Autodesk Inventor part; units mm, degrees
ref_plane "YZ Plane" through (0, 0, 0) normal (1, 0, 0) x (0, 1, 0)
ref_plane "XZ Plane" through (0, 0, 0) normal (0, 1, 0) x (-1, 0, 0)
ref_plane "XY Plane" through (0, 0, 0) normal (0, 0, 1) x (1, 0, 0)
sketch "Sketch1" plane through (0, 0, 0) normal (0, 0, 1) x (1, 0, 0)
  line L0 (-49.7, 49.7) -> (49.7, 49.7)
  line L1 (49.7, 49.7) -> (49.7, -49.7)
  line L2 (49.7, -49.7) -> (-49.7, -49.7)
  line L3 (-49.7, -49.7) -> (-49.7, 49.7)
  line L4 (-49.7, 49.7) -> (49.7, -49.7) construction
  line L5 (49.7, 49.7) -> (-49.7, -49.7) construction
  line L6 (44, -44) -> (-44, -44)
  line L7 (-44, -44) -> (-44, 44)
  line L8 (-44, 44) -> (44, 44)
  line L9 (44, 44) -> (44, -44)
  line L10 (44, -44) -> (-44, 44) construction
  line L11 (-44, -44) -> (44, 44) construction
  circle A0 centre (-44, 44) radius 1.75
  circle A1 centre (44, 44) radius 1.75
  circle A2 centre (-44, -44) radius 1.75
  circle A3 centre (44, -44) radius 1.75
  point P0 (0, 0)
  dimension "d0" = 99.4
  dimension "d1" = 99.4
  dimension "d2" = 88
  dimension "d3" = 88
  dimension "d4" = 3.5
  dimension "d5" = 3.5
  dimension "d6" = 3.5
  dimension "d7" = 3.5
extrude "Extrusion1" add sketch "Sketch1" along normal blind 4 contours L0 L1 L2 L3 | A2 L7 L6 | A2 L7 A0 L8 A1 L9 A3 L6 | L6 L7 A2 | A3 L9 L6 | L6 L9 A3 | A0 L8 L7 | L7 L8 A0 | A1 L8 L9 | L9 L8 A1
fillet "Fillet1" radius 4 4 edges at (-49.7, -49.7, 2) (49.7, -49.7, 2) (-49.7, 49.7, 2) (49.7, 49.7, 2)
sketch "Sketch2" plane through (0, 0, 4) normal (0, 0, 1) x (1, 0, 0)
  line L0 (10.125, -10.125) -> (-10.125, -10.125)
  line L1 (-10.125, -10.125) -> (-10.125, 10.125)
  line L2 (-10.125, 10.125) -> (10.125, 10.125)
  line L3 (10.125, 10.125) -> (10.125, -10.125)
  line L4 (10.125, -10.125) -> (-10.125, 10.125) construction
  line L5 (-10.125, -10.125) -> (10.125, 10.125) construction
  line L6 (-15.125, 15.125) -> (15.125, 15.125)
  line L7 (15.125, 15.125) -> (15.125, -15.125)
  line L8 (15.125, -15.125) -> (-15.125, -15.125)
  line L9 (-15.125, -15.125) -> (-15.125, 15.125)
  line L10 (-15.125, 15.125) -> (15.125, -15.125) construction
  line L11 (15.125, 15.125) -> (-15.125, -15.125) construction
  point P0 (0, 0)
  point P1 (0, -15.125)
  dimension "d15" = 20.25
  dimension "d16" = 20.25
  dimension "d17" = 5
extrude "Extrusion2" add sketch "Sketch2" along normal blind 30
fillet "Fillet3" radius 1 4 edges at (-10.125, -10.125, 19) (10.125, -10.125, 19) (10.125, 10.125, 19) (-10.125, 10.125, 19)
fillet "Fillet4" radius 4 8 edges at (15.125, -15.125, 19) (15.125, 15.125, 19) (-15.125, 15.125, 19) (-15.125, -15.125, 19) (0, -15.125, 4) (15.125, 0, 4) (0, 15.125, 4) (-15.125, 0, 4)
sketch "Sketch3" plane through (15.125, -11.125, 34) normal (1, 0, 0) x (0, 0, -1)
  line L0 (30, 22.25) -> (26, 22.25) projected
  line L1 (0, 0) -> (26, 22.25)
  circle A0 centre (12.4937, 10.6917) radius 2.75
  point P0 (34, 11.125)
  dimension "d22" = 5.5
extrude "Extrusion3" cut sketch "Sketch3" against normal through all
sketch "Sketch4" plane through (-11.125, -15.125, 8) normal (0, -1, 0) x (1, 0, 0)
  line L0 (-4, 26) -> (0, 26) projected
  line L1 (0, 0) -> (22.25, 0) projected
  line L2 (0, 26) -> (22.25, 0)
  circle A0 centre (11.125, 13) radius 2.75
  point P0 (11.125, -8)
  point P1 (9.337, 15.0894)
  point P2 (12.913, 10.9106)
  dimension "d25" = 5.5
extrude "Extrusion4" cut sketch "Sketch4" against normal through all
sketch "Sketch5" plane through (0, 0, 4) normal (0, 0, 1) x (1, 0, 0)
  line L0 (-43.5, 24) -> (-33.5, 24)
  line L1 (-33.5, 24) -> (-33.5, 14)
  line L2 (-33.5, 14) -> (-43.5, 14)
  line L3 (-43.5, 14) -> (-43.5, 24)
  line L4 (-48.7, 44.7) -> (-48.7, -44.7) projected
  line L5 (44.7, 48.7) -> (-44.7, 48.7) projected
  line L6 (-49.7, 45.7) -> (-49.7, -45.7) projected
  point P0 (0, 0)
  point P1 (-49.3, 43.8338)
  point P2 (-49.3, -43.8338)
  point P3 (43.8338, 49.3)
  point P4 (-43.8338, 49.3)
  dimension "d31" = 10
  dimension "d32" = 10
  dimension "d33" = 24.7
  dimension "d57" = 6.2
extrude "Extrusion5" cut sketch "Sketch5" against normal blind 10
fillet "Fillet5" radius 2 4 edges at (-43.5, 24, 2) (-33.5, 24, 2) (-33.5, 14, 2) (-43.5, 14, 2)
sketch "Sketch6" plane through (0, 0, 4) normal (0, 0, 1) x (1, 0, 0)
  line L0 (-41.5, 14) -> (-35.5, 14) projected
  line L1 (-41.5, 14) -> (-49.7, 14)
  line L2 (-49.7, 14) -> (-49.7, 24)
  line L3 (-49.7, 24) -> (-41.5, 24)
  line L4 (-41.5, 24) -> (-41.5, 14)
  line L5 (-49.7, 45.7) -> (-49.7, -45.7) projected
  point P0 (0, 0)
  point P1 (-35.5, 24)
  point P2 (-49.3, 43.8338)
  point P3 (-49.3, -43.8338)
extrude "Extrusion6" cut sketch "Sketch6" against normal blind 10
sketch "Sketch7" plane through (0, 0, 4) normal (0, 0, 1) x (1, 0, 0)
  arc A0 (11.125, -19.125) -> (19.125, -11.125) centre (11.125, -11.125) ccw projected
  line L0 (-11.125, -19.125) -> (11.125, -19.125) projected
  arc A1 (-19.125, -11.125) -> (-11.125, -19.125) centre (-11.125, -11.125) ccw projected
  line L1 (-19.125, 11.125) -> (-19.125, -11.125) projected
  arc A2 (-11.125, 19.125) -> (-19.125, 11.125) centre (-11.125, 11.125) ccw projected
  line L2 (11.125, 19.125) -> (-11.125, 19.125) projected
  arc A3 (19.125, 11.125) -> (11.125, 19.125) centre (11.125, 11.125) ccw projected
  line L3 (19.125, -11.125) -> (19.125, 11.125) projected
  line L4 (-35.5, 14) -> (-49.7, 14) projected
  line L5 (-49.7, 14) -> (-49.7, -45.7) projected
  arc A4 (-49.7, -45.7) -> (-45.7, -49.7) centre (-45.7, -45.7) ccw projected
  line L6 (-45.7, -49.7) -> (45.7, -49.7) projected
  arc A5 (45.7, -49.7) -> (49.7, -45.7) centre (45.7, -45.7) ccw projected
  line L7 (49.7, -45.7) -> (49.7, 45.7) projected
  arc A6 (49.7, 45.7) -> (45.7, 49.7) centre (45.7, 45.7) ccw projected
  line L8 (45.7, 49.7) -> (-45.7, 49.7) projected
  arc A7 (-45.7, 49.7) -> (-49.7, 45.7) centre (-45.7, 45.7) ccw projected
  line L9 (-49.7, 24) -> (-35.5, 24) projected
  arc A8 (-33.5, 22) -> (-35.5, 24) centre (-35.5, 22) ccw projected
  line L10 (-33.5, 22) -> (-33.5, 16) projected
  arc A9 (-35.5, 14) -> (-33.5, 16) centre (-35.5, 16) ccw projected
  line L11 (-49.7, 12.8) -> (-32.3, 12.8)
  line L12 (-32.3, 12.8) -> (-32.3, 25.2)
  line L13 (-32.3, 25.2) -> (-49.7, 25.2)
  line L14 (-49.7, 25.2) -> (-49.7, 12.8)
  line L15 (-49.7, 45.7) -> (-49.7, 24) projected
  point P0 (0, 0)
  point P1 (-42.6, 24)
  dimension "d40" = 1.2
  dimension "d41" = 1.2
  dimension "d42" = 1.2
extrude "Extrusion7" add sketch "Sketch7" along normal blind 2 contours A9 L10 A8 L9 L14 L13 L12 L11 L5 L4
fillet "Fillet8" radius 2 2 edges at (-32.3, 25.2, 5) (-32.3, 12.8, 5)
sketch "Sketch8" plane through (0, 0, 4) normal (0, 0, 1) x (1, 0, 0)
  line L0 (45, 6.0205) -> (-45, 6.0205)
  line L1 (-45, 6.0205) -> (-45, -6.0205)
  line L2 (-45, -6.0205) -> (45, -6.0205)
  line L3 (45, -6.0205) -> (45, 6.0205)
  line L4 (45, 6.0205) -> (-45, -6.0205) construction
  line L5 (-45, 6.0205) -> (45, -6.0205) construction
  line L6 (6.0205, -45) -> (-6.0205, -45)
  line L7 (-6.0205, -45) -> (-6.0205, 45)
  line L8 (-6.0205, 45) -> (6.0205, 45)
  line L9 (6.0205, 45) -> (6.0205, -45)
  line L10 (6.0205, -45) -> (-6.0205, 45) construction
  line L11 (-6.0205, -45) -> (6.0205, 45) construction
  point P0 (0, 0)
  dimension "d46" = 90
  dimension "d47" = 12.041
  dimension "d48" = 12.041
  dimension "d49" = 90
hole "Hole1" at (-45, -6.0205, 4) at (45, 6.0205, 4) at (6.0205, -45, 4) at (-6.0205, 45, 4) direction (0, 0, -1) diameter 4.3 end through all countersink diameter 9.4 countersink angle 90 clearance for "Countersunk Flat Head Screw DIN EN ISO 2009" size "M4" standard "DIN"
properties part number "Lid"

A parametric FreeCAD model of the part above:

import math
import FreeCAD as App
import Part
import Sketcher


def edges_at(feature, points):
    """Names of the edges that pass closest to the given points."""
    edges = feature.Shape.Edges
    near = lambda p: min(range(len(edges)), key=lambda i: edges[i].distToShape(Part.Vertex(*p))[0])
    return sorted({f"Edge{near(p) + 1}" for p in points})

doc = App.newDocument("Part")
body = doc.addObject("PartDesign::Body", "Body")

sketch1 = body.newObject("Sketcher::SketchObject", "Sketch")
sketch1.AttachmentSupport = (doc.getObject("XY_Plane"), [""])
sketch1.MapMode = "FlatFace"
sketch1.addGeometry(Part.LineSegment(App.Vector(50, 50, 0), App.Vector(-50, 50, 0)), False)
sketch1.addGeometry(Part.LineSegment(App.Vector(-50, 50, 0), App.Vector(-50, -50, 0)), False)
sketch1.addGeometry(Part.LineSegment(App.Vector(-50, -50, 0), App.Vector(50, -50, 0)), False)
sketch1.addGeometry(Part.LineSegment(App.Vector(50, -50, 0), App.Vector(50, 50, 0)), False)
sketch1.addConstraint(Sketcher.Constraint("Coincident", 0, 2, 1, 1))
sketch1.addConstraint(Sketcher.Constraint("Coincident", 1, 2, 2, 1))
sketch1.addConstraint(Sketcher.Constraint("Coincident", 2, 2, 3, 1))
sketch1.addConstraint(Sketcher.Constraint("Coincident", 3, 2, 0, 1))
sketch1.addConstraint(Sketcher.Constraint("Horizontal", 0))
sketch1.addConstraint(Sketcher.Constraint("Vertical", 1))
sketch1.addConstraint(Sketcher.Constraint("Horizontal", 2))
sketch1.addConstraint(Sketcher.Constraint("Vertical", 3))
sketch1.addConstraint(Sketcher.Constraint("Symmetric", 0, 2, 2, 2, -1, 1))
sketch1.addConstraint(Sketcher.Constraint("Equal", 2, 1))
sketch1.addConstraint(Sketcher.Constraint("DistanceX", 0, 2, 0, 1, 99.4))
pad1 = body.newObject("PartDesign::Pad", "Pad")
pad1.Profile = sketch1
pad1.Length = 4
doc.recompute()

fillet = body.newObject("PartDesign::Fillet", "Fillet")
fillet.Base = (pad1, edges_at(pad1, [
    (-49.7, -49.7, 2),
    (49.7, -49.7, 2),
    (-49.7, 49.7, 2),
    (49.7, 49.7, 2),
]))
fillet.Radius = 4

sketch2 = body.newObject("Sketcher::SketchObject", "Sketch001")
sketch2.AttachmentSupport = (doc.getObject("XY_Plane"), [""])
sketch2.MapMode = "FlatFace"
sketch2.AttachmentOffset = App.Placement(App.Vector(0, 0, 4), App.Rotation())
sketch2.addGeometry(Part.LineSegment(App.Vector(15, 15, 0), App.Vector(-15, 15, 0)), False)
sketch2.addGeometry(Part.LineSegment(App.Vector(-15, 15, 0), App.Vector(-15, -15, 0)), False)
sketch2.addGeometry(Part.LineSegment(App.Vector(-15, -15, 0), App.Vector(15, -15, 0)), False)
sketch2.addGeometry(Part.LineSegment(App.Vector(15, -15, 0), App.Vector(15, 15, 0)), False)
sketch2.addGeometry(Part.LineSegment(App.Vector(10, 10, 0), App.Vector(10, -10, 0)), False)
sketch2.addGeometry(Part.LineSegment(App.Vector(10, -10, 0), App.Vector(-10, -10, 0)), False)
sketch2.addGeometry(Part.LineSegment(App.Vector(-10, -10, 0), App.Vector(-10, 10, 0)), False)
sketch2.addGeometry(Part.LineSegment(App.Vector(-10, 10, 0), App.Vector(10, 10, 0)), False)
sketch2.addConstraint(Sketcher.Constraint("Coincident", 0, 2, 1, 1))
sketch2.addConstraint(Sketcher.Constraint("Coincident", 1, 2, 2, 1))
sketch2.addConstraint(Sketcher.Constraint("Coincident", 2, 2, 3, 1))
sketch2.addConstraint(Sketcher.Constraint("Coincident", 3, 2, 0, 1))
sketch2.addConstraint(Sketcher.Constraint("Coincident", 4, 2, 5, 1))
sketch2.addConstraint(Sketcher.Constraint("Coincident", 5, 2, 6, 1))
sketch2.addConstraint(Sketcher.Constraint("Coincident", 6, 2, 7, 1))
sketch2.addConstraint(Sketcher.Constraint("Coincident", 7, 2, 4, 1))
sketch2.addConstraint(Sketcher.Constraint("Horizontal", 0))
sketch2.addConstraint(Sketcher.Constraint("Vertical", 1))
sketch2.addConstraint(Sketcher.Constraint("Horizontal", 2))
sketch2.addConstraint(Sketcher.Constraint("Vertical", 3))
sketch2.addConstraint(Sketcher.Constraint("Vertical", 4))
sketch2.addConstraint(Sketcher.Constraint("Horizontal", 5))
sketch2.addConstraint(Sketcher.Constraint("Vertical", 6))
sketch2.addConstraint(Sketcher.Constraint("Horizontal", 7))
sketch2.addConstraint(Sketcher.Constraint("Symmetric", 0, 2, 2, 2, -1, 1))
sketch2.addConstraint(Sketcher.Constraint("Symmetric", 4, 2, 6, 2, -1, 1))
sketch2.addConstraint(Sketcher.Constraint("Equal", 2, 1))
sketch2.addConstraint(Sketcher.Constraint("Equal", 7, 4))
sketch2.addConstraint(Sketcher.Constraint("DistanceX", 4, 2, 2, 2, 5.0))
sketch2.addConstraint(Sketcher.Constraint("DistanceX", 5, 2, 5, 1, 20.25))
pad2 = body.newObject("PartDesign::Pad", "Pad001")
pad2.Profile = sketch2
pad2.Length = 30
doc.recompute()

fillet2 = body.newObject("PartDesign::Fillet", "Fillet001")
fillet2.Base = (pad2, edges_at(pad2, [
    (-10.125, -10.125, 19),
    (10.125, -10.125, 19),
    (10.125, 10.125, 19),
    (-10.125, 10.125, 19),
]))
fillet2.Radius = 1
doc.recompute()

fillet3 = body.newObject("PartDesign::Fillet", "Fillet002")
fillet3.Base = (fillet2, edges_at(fillet2, [
    (15.125, -15.125, 19),
    (15.125, 15.125, 19),
    (-15.125, 15.125, 19),
    (-15.125, -15.125, 19),
    (0, -15.125, 4),
    (15.125, 0, 4),
    (0, 15.125, 4),
    (-15.125, 0, 4),
]))
fillet3.Radius = 4

sketch3 = body.newObject("Sketcher::SketchObject", "Sketch002")
sketch3.AttachmentSupport = (doc.getObject("YZ_Plane"), [""])
sketch3.MapMode = "FlatFace"
sketch3.AttachmentOffset = App.Placement(App.Vector(0, 0, 15.125), App.Rotation())
sketch3.addGeometry(Part.Circle(App.Vector(-0.4, 21.5, 0), App.Vector(0, 0, 1), 2.8), False)
sketch3.addConstraint(Sketcher.Constraint("Diameter", 0, 5.5))
sketch3.addConstraint(Sketcher.Constraint("DistanceX", 0, 3, -1, 1, 0.4333))
sketch3.addConstraint(Sketcher.Constraint("DistanceY", -1, 1, 0, 3, 21.5063))
pocket1 = body.newObject("PartDesign::Pocket", "Pocket")
pocket1.Profile = sketch3
pocket1.Type = "ThroughAll"

sketch4 = body.newObject("Sketcher::SketchObject", "Sketch003")
sketch4.AttachmentSupport = (doc.getObject("XZ_Plane"), [""])
sketch4.MapMode = "FlatFace"
sketch4.AttachmentOffset = App.Placement(App.Vector(0, 0, 15.125), App.Rotation())
sketch4.addGeometry(Part.Circle(App.Vector(0, 21, 0), App.Vector(0, 0, 1), 2.8), False)
sketch4.addConstraint(Sketcher.Constraint("PointOnObject", 0, 3, -2))
sketch4.addConstraint(Sketcher.Constraint("Diameter", 0, 5.5))
sketch4.addConstraint(Sketcher.Constraint("DistanceY", -1, 1, 0, 3, 21.0))
pocket2 = body.newObject("PartDesign::Pocket", "Pocket001")
pocket2.Profile = sketch4
pocket2.Type = "ThroughAll"

sketch5 = body.newObject("Sketcher::SketchObject", "Sketch004")
sketch5.AttachmentSupport = (doc.getObject("XY_Plane"), [""])
sketch5.MapMode = "FlatFace"
sketch5.AttachmentOffset = App.Placement(App.Vector(0, 0, 4), App.Rotation())
sketch5.addGeometry(Part.LineSegment(App.Vector(-34, 24, 0), App.Vector(-44, 24, 0)), False)
sketch5.addGeometry(Part.LineSegment(App.Vector(-44, 24, 0), App.Vector(-44, 14, 0)), False)
sketch5.addGeometry(Part.LineSegment(App.Vector(-44, 14, 0), App.Vector(-34, 14, 0)), False)
sketch5.addGeometry(Part.LineSegment(App.Vector(-34, 14, 0), App.Vector(-34, 24, 0)), False)
sketch5.addConstraint(Sketcher.Constraint("Coincident", 0, 2, 1, 1))
sketch5.addConstraint(Sketcher.Constraint("Coincident", 1, 2, 2, 1))
sketch5.addConstraint(Sketcher.Constraint("Coincident", 2, 2, 3, 1))
sketch5.addConstraint(Sketcher.Constraint("Coincident", 3, 2, 0, 1))
sketch5.addConstraint(Sketcher.Constraint("Horizontal", 0))
sketch5.addConstraint(Sketcher.Constraint("Vertical", 1))
sketch5.addConstraint(Sketcher.Constraint("Horizontal", 2))
sketch5.addConstraint(Sketcher.Constraint("Vertical", 3))
sketch5.addConstraint(Sketcher.Constraint("Equal", 2, 1))
sketch5.addConstraint(Sketcher.Constraint("DistanceX", 0, 2, 0, 1, 10.0))
sketch5.addConstraint(Sketcher.Constraint("DistanceY", -1, 1, 0, 2, 24.0))
sketch5.addConstraint(Sketcher.Constraint("DistanceX", 0, 2, -1, 1, 43.5))
pocket3 = body.newObject("PartDesign::Pocket", "Pocket002")
pocket3.Profile = sketch5
pocket3.Length = 10
doc.recompute()

fillet4 = body.newObject("PartDesign::Fillet", "Fillet003")
fillet4.Base = (pocket3, edges_at(pocket3, [
    (-43.5, 24, 2),
    (-33.5, 24, 2),
    (-33.5, 14, 2),
    (-43.5, 14, 2),
]))
fillet4.Radius = 2

sketch6 = body.newObject("Sketcher::SketchObject", "Sketch005")
sketch6.AttachmentSupport = (doc.getObject("XY_Plane"), [""])
sketch6.MapMode = "FlatFace"
sketch6.AttachmentOffset = App.Placement(App.Vector(0, 0, 4), App.Rotation())
sketch6.addGeometry(Part.LineSegment(App.Vector(-50, 14, 0), App.Vector(-42, 14, 0)), False)
sketch6.addGeometry(Part.LineSegment(App.Vector(-42, 14, 0), App.Vector(-42, 24, 0)), False)
sketch6.addGeometry(Part.LineSegment(App.Vector(-42, 24, 0), App.Vector(-50, 24, 0)), False)
sketch6.addGeometry(Part.LineSegment(App.Vector(-50, 24, 0), App.Vector(-50, 14, 0)), False)
sketch6.addConstraint(Sketcher.Constraint("Coincident", 0, 2, 1, 1))
sketch6.addConstraint(Sketcher.Constraint("Coincident", 1, 2, 2, 1))
sketch6.addConstraint(Sketcher.Constraint("Coincident", 2, 2, 3, 1))
sketch6.addConstraint(Sketcher.Constraint("Coincident", 3, 2, 0, 1))
sketch6.addConstraint(Sketcher.Constraint("Horizontal", 0))
sketch6.addConstraint(Sketcher.Constraint("Vertical", 1))
sketch6.addConstraint(Sketcher.Constraint("Horizontal", 2))
sketch6.addConstraint(Sketcher.Constraint("Vertical", 3))
sketch6.addConstraint(Sketcher.Constraint("DistanceY", 1, 1, 1, 2, 10.0))
sketch6.addConstraint(Sketcher.Constraint("DistanceX", 0, 1, 0, 2, 8.2))
sketch6.addConstraint(Sketcher.Constraint("DistanceY", -1, 1, 0, 2, 14.0))
sketch6.addConstraint(Sketcher.Constraint("DistanceX", 0, 2, -1, 1, 41.5))
pocket4 = body.newObject("PartDesign::Pocket", "Pocket003")
pocket4.Profile = sketch6
pocket4.Length = 10

sketch7 = body.newObject("Sketcher::SketchObject", "Sketch006")
sketch7.AttachmentSupport = (doc.getObject("XY_Plane"), [""])
sketch7.MapMode = "FlatFace"
sketch7.AttachmentOffset = App.Placement(App.Vector(0, 0, 4), App.Rotation())
sketch7.addGeometry(Part.ArcOfCircle(Part.Circle(App.Vector(-35.5, 16, 0), App.Vector(0, 0, 1), 2), math.radians(-90), math.radians(0)), False)
sketch7.addGeometry(Part.LineSegment(App.Vector(-35.5, 14, 0), App.Vector(-49.7, 14, 0)), False)
sketch7.addGeometry(Part.LineSegment(App.Vector(-49.7, 14, 0), App.Vector(-49.7, 12.8, 0)), False)
sketch7.addGeometry(Part.LineSegment(App.Vector(-49.7, 12.8, 0), App.Vector(-32.3, 12.8, 0)), False)
sketch7.addGeometry(Part.LineSegment(App.Vector(-32.3, 12.8, 0), App.Vector(-32.3, 25.2, 0)), False)
sketch7.addGeometry(Part.LineSegment(App.Vector(-32.3, 25.2, 0), App.Vector(-49.7, 25.2, 0)), False)
sketch7.addGeometry(Part.LineSegment(App.Vector(-49.7, 25.2, 0), App.Vector(-49.7, 24, 0)), False)
sketch7.addGeometry(Part.LineSegment(App.Vector(-49.7, 24, 0), App.Vector(-35.5, 24, 0)), False)
sketch7.addGeometry(Part.ArcOfCircle(Part.Circle(App.Vector(-35.5, 22, 0), App.Vector(0, 0, 1), 2), math.radians(0), math.radians(90)), False)
sketch7.addGeometry(Part.LineSegment(App.Vector(-33.5, 22, 0), App.Vector(-33.5, 16, 0)), False)
sketch7.addConstraint(Sketcher.Constraint("Tangent", 0, 1, 1, 1))
sketch7.addConstraint(Sketcher.Constraint("Coincident", 1, 2, 2, 1))
sketch7.addConstraint(Sketcher.Constraint("Coincident", 2, 2, 3, 1))
sketch7.addConstraint(Sketcher.Constraint("Coincident", 3, 2, 4, 1))
sketch7.addConstraint(Sketcher.Constraint("Coincident", 4, 2, 5, 1))
sketch7.addConstraint(Sketcher.Constraint("Coincident", 5, 2, 6, 1))
sketch7.addConstraint(Sketcher.Constraint("Coincident", 6, 2, 7, 1))
sketch7.addConstraint(Sketcher.Constraint("Tangent", 7, 2, 8, 2))
sketch7.addConstraint(Sketcher.Constraint("Tangent", 8, 1, 9, 1))
sketch7.addConstraint(Sketcher.Constraint("Tangent", 9, 2, 0, 2))
sketch7.addConstraint(Sketcher.Constraint("Horizontal", 1))
sketch7.addConstraint(Sketcher.Constraint("Vertical", 2))
sketch7.addConstraint(Sketcher.Constraint("Horizontal", 3))
sketch7.addConstraint(Sketcher.Constraint("Vertical", 4))
sketch7.addConstraint(Sketcher.Constraint("Horizontal", 5))
sketch7.addConstraint(Sketcher.Constraint("Vertical", 6))
sketch7.addConstraint(Sketcher.Constraint("Horizontal", 7))
sketch7.addConstraint(Sketcher.Constraint("Vertical", 9))
sketch7.addConstraint(Sketcher.Constraint("Equal", 0, 8))
sketch7.addConstraint(Sketcher.Constraint("Vertical", 2, 2, 5, 2))
sketch7.addConstraint(Sketcher.Constraint("Equal", 2, 6))
sketch7.addConstraint(Sketcher.Constraint("DistanceY", 2, 2, 2, 1, 1.2))
sketch7.addConstraint(Sketcher.Constraint("Radius", 0, 2.0))
sketch7.addConstraint(Sketcher.Constraint("DistanceX", 8, 1, 4, 2, 1.2))
sketch7.addConstraint(Sketcher.Constraint("DistanceY", 9, 2, 9, 1, 6.0))
sketch7.addConstraint(Sketcher.Constraint("DistanceX", 1, 2, 1, 1, 14.2))
sketch7.addConstraint(Sketcher.Constraint("DistanceY", -1, 1, 0, 3, 16.0))
sketch7.addConstraint(Sketcher.Constraint("DistanceX", 0, 3, -1, 1, 35.5))
pad3 = body.newObject("PartDesign::Pad", "Pad002")
pad3.Profile = sketch7
pad3.Length = 2
doc.recompute()

fillet5 = body.newObject("PartDesign::Fillet", "Fillet004")
fillet5.Base = (pad3, edges_at(pad3, [(-32.3, 25.2, 5), (-32.3, 12.8, 5)]))
fillet5.Radius = 2

sketch8 = body.newObject("Sketcher::SketchObject", "Sketch007")
sketch8.AttachmentSupport = (doc.getObject("XY_Plane"), [""])
sketch8.MapMode = "FlatFace"
sketch8.AttachmentOffset = App.Placement(App.Vector(0, 0, 4), App.Rotation())
sketch8.addGeometry(Part.Circle(App.Vector(-45, -6, 0), App.Vector(0, 0, 1), 2.1), False)
sketch8.addGeometry(Part.Circle(App.Vector(45, 6, 0), App.Vector(0, 0, 1), 2.1), False)
sketch8.addGeometry(Part.Circle(App.Vector(6, -45, 0), App.Vector(0, 0, 1), 2.1), False)
sketch8.addGeometry(Part.Circle(App.Vector(-6, 45, 0), App.Vector(0, 0, 1), 2.1), False)
sketch8.addConstraint(Sketcher.Constraint("Equal", 0, 1))
sketch8.addConstraint(Sketcher.Constraint("Equal", 1, 2))
sketch8.addConstraint(Sketcher.Constraint("Equal", 2, 3))
sketch8.addConstraint(Sketcher.Constraint("Symmetric", 0, 3, 1, 3, -1, 1))
sketch8.addConstraint(Sketcher.Constraint("Symmetric", 2, 3, 3, 3, -1, 1))
sketch8.addConstraint(Sketcher.Constraint("Diameter", 0, 4.3))
sketch8.addConstraint(Sketcher.Constraint("DistanceX", 0, 3, -1, 1, 45.0))
sketch8.addConstraint(Sketcher.Constraint("DistanceY", 2, 3, -1, 1, 45.0))
sketch8.addConstraint(Sketcher.Constraint("DistanceY", 0, 3, 1, 3, 12.041))
sketch8.addConstraint(Sketcher.Constraint("DistanceX", 3, 3, 2, 3, 12.041))
doc.recompute()
hole = body.newObject("PartDesign::Hole", "Hole")
hole.Profile = sketch8
hole.ThreadType = "None"
hole.Diameter = 4.3
hole.DepthType = "ThroughAll"
hole.HoleCutType = "Countersink"
hole.HoleCutDiameter = 9.4
hole.HoleCutCountersinkAngle = 90

doc.recompute()
